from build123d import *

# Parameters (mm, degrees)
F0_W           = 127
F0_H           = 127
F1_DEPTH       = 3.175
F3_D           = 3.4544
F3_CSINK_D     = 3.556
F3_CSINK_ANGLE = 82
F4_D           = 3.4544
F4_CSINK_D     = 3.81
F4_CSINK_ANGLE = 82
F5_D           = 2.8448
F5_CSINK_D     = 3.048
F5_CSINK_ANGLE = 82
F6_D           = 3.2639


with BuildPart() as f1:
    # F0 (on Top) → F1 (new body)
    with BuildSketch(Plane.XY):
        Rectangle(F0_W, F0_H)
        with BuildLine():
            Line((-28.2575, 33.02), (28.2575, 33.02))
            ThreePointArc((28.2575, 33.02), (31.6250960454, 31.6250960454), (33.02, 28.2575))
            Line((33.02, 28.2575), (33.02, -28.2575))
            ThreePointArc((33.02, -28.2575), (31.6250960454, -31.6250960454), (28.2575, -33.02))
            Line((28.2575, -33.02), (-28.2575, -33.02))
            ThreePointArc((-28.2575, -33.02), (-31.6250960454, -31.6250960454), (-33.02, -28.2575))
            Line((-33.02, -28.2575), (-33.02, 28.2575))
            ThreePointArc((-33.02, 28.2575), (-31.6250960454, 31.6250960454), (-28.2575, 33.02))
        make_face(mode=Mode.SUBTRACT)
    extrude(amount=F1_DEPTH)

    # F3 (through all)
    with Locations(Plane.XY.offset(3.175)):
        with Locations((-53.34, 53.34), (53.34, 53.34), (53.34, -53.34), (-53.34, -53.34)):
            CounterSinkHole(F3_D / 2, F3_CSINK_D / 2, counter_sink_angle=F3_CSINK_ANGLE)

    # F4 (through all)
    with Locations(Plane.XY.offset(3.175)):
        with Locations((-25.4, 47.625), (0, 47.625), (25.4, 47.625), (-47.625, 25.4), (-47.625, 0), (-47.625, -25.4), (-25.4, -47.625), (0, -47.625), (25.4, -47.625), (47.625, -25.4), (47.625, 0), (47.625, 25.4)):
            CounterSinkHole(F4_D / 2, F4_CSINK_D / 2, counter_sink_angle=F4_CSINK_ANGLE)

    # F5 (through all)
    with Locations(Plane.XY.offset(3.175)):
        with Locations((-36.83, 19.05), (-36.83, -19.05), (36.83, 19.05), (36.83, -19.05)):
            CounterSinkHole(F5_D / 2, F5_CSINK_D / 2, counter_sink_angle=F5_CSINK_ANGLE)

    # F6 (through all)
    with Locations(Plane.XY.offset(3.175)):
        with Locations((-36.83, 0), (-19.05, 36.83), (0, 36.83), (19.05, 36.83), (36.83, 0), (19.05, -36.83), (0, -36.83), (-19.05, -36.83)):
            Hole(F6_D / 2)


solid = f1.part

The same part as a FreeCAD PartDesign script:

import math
import FreeCAD as App
import Part
import Sketcher
from FreeCAD import Vector
Q = App.Units.Quantity


def add_polygon(sketch, points):
    """Adds a closed chain of lines whose ends are joined by coincident constraints."""
    first, n = sketch.GeometryCount, len(points)
    for a, b in zip(points, points[1:] + points[:1]):
        sketch.addGeometry(Part.LineSegment(App.Vector(*a, 0), App.Vector(*b, 0)), False)
    for i in range(n):
        sketch.addConstraint(Sketcher.Constraint("Coincident", first + i, 2, first + (i + 1) % n, 1))

doc = App.newDocument("Part")
params = doc.addObject("Spreadsheet::Sheet", "Params")
for row, (alias, value) in enumerate([
    ("sketch1_width", "5 in"),
    ("sketch1_radius", "0.1875 in"),
    ("pad1_length", "0.125 in"),
    ("sketch2_diameter", "0.136 in"),
    ("hole_diameter", "0.136 in"),
    ("hole_csink_diameter", "0.14 in"),
    ("sketch3_diameter", "0.136 in"),
    ("hole2_diameter", "0.136 in"),
    ("hole2_csink_diameter", "0.15 in"),
    ("sketch4_diameter", "0.112 in"),
    ("hole3_diameter", "0.112 in"),
    ("hole3_csink_diameter", "0.12 in"),
    ("hole4_diameter", "0.1285 in"),
], start=1):
    params.set(f"A{row}", alias)
    params.set(f"B{row}", "=" + value)
    params.setAlias(f"B{row}", alias)

body = doc.addObject("PartDesign::Body", "Body")

sketch1 = body.newObject("Sketcher::SketchObject", "Sketch")
sketch1.AttachmentSupport = (doc.getObject("XY_Plane"), [""])
sketch1.MapMode = "FlatFace"
add_polygon(sketch1, [(-63.5, 63.5), (-63.5, -63.5), (63.5, -63.5), (63.5, 63.5)])
sketch1.addGeometry(Part.ArcOfCircle(Part.Circle(Vector(-28.3, 28.3, 0), Vector(0, 0, 1), 4.8), math.radians(90), math.radians(180)), False)
sketch1.addGeometry(Part.LineSegment(Vector(-28.3, 33, 0), Vector(28.3, 33, 0)), False)
sketch1.addGeometry(Part.ArcOfCircle(Part.Circle(Vector(28.3, 28.3, 0), Vector(0, 0, 1), 4.8), math.radians(0), math.radians(90)), False)
sketch1.addGeometry(Part.LineSegment(Vector(33, 28.3, 0), Vector(33, -28.3, 0)), False)
sketch1.addGeometry(Part.ArcOfCircle(Part.Circle(Vector(28.3, -28.3, 0), Vector(0, 0, 1), 4.8), math.radians(-90), math.radians(0)), False)
sketch1.addGeometry(Part.LineSegment(Vector(28.3, -33, 0), Vector(-28.3, -33, 0)), False)
sketch1.addGeometry(Part.ArcOfCircle(Part.Circle(Vector(-28.3, -28.3, 0), Vector(0, 0, 1), 4.8), math.radians(180), math.radians(270)), False)
sketch1.addGeometry(Part.LineSegment(Vector(-33, -28.3, 0), Vector(-33, 28.3, 0)), False)
sketch1.addConstraint([
    Sketcher.Constraint("Tangent", 4, 1, 5, 1),
    Sketcher.Constraint("Tangent", 5, 2, 6, 2),
    Sketcher.Constraint("Tangent", 6, 1, 7, 1),
    Sketcher.Constraint("Tangent", 7, 2, 8, 2),
    Sketcher.Constraint("Tangent", 8, 1, 9, 1),
    Sketcher.Constraint("Tangent", 9, 2, 10, 2),
    Sketcher.Constraint("Tangent", 10, 1, 11, 1),
    Sketcher.Constraint("Tangent", 11, 2, 4, 2),
    Sketcher.Constraint("Vertical", 0),
    Sketcher.Constraint("Horizontal", 1),
    Sketcher.Constraint("Vertical", 2),
    Sketcher.Constraint("Horizontal", 3),
    Sketcher.Constraint("Horizontal", 5),
    Sketcher.Constraint("Vertical", 7),
    Sketcher.Constraint("Horizontal", 9),
    Sketcher.Constraint("Vertical", 11),
    Sketcher.Constraint("Equal", 4, 6),
    Sketcher.Constraint("Equal", 6, 8),
    Sketcher.Constraint("Equal", 8, 10),
    Sketcher.Constraint("Symmetric", 4, 3, 8, 3, -1, 1),
    Sketcher.Constraint("Symmetric", 0, 2, 2, 2, -1, 1),
    Sketcher.Constraint("Equal", 3, 0),
    Sketcher.Constraint("Equal", 9, 7),
    Sketcher.Constraint("DistanceX", 1, 1, 1, 2, Q("5 in")),
    Sketcher.Constraint("Radius", 4, Q("0.1875 in")),
    Sketcher.Constraint("DistanceY", -1, 1, 4, 1, Q("1.3 in")),
])
sketch1.setExpression("Constraints[27]", "Params.sketch1_width")
sketch1.setExpression("Constraints[28]", "Params.sketch1_radius")
pad1 = body.newObject("PartDesign::Pad", "Pad")
pad1.Profile = sketch1
pad1.setExpression("Length", "Params.pad1_length")

sketch2 = body.newObject("Sketcher::SketchObject", "Sketch001")
sketch2.AttachmentSupport = (doc.getObject("XY_Plane"), [""])
sketch2.MapMode = "FlatFace"
sketch2.AttachmentOffset = App.Placement(Vector(0, 0, 0.125 * 25.4), App.Rotation())
sketch2.addGeometry([
    Part.Circle(Vector(-53.3, 53.3, 0), Vector(0, 0, 1), 1.7),
    Part.Circle(Vector(53.3, 53.3, 0), Vector(0, 0, 1), 1.7),
    Part.Circle(Vector(53.3, -53.3, 0), Vector(0, 0, 1), 1.7),
    Part.Circle(Vector(-53.3, -53.3, 0), Vector(0, 0, 1), 1.7),
], False)
sketch2.addConstraint([
    Sketcher.Constraint("Equal", 0, 1),
    Sketcher.Constraint("Equal", 1, 2),
    Sketcher.Constraint("Equal", 2, 3),
    Sketcher.Constraint("Symmetric", 0, 3, 2, 3, -1, 1),
    Sketcher.Constraint("Symmetric", 1, 3, 3, 3, -1, 1),
    Sketcher.Constraint("Symmetric", 0, 3, 1, 3, -2),
    Sketcher.Constraint("Diameter", 0, Q("0.136 in")),
    Sketcher.Constraint("DistanceX", 0, 3, -1, 1, Q("2.1 in")),
    Sketcher.Constraint("DistanceY", -1, 1, 0, 3, Q("2.1 in")),
])
sketch2.setExpression("Constraints[6]", "Params.sketch2_diameter")
doc.recompute()
hole = body.newObject("PartDesign::Hole", "Hole")
hole.Profile = sketch2
hole.ThreadType = "None"
hole.setExpression("Diameter", "Params.hole_diameter")
hole.DepthType = "ThroughAll"
hole.HoleCutType = "Countersink"
hole.setExpression("HoleCutDiameter", "Params.hole_csink_diameter")
hole.HoleCutCountersinkAngle = 82

sketch3 = body.newObject("Sketcher::SketchObject", "Sketch002")
sketch3.AttachmentSupport = (doc.getObject("XY_Plane"), [""])
sketch3.MapMode = "FlatFace"
sketch3.AttachmentOffset = App.Placement(Vector(0, 0, 0.125 * 25.4), App.Rotation())
sketch3.addGeometry([
    Part.Circle(Vector(-25.4, 47.6, 0), Vector(0, 0, 1), 1.7),
    Part.Circle(Vector(0, 47.6, 0), Vector(0, 0, 1), 1.7),
    Part.Circle(Vector(25.4, 47.6, 0), Vector(0, 0, 1), 1.7),
    Part.Circle(Vector(-47.6, 25.4, 0), Vector(0, 0, 1), 1.7),
    Part.Circle(Vector(-47.6, 0, 0), Vector(0, 0, 1), 1.7),
    Part.Circle(Vector(-47.6, -25.4, 0), Vector(0, 0, 1), 1.7),
    Part.Circle(Vector(-25.4, -47.6, 0), Vector(0, 0, 1), 1.7),
    Part.Circle(Vector(0, -47.6, 0), Vector(0, 0, 1), 1.7),
    Part.Circle(Vector(25.4, -47.6, 0), Vector(0, 0, 1), 1.7),
    Part.Circle(Vector(47.6, -25.4, 0), Vector(0, 0, 1), 1.7),
    Part.Circle(Vector(47.6, 0, 0), Vector(0, 0, 1), 1.7),
    Part.Circle(Vector(47.6, 25.4, 0), Vector(0, 0, 1), 1.7),
], False)
sketch3.addConstraint([
    Sketcher.Constraint("Equal", 0, 1),
    Sketcher.Constraint("Equal", 1, 2),
    Sketcher.Constraint("Equal", 2, 3),
    Sketcher.Constraint("Equal", 3, 4),
    Sketcher.Constraint("Equal", 4, 5),
    Sketcher.Constraint("Equal", 5, 6),
    Sketcher.Constraint("Equal", 6, 7),
    Sketcher.Constraint("Equal", 7, 8),
    Sketcher.Constraint("Equal", 8, 9),
    Sketcher.Constraint("Equal", 9, 10),
    Sketcher.Constraint("Equal", 10, 11),
    Sketcher.Constraint("Symmetric", 2, 3, 6, 3, -1, 1),
    Sketcher.Constraint("Symmetric", 1, 3, 7, 3, -1, 1),
    Sketcher.Constraint("Symmetric", 0, 3, 8, 3, -1, 1),
    Sketcher.Constraint("Symmetric", 3, 3, 9, 3, -1, 1),
    Sketcher.Constraint("Symmetric", 4, 3, 10, 3, -1, 1),
    Sketcher.Constraint("Symmetric", 5, 3, 11, 3, -1, 1),
    Sketcher.Constraint("Symmetric", 0, 3, 2, 3, -2),
    Sketcher.Constraint("Symmetric", 5, 3, 9, 3, -2),
    Sketcher.Constraint("PointOnObject", 1, 3, -2),
    Sketcher.Constraint("PointOnObject", 4, 3, -1),
    Sketcher.Constraint("Horizontal", 0, 3, 1, 3),
    Sketcher.Constraint("Vertical", 3, 3, 4, 3),
    Sketcher.Constraint("Diameter", 0, Q("0.136 in")),
    Sketcher.Constraint("DistanceX", 0, 3, -1, 1, Q("1 in")),
    Sketcher.Constraint("DistanceY", -1, 1, 3, 3, Q("1 in")),
    Sketcher.Constraint("DistanceY", 6, 3, 0, 3, Q("3.75 in")),
    Sketcher.Constraint("DistanceX", 3, 3, -1, 1, Q("1.875 in")),
])
sketch3.setExpression("Constraints[23]", "Params.sketch3_diameter")
doc.recompute()
hole2 = body.newObject("PartDesign::Hole", "Hole001")
hole2.Profile = sketch3
hole2.ThreadType = "None"
hole2.setExpression("Diameter", "Params.hole2_diameter")
hole2.DepthType = "ThroughAll"
hole2.HoleCutType = "Countersink"
hole2.setExpression("HoleCutDiameter", "Params.hole2_csink_diameter")
hole2.HoleCutCountersinkAngle = 82

sketch4 = body.newObject("Sketcher::SketchObject", "Sketch003")
sketch4.AttachmentSupport = (doc.getObject("XY_Plane"), [""])
sketch4.MapMode = "FlatFace"
sketch4.AttachmentOffset = App.Placement(Vector(0, 0, 0.125 * 25.4), App.Rotation())
sketch4.addGeometry([
    Part.Circle(Vector(-36.8, 19.1, 0), Vector(0, 0, 1), 1.4),
    Part.Circle(Vector(-36.8, -19.1, 0), Vector(0, 0, 1), 1.4),
    Part.Circle(Vector(36.8, 19.1, 0), Vector(0, 0, 1), 1.4),
    Part.Circle(Vector(36.8, -19.1, 0), Vector(0, 0, 1), 1.4),
], False)
sketch4.addConstraint([
    Sketcher.Constraint("Equal", 0, 1),
    Sketcher.Constraint("Equal", 1, 2),
    Sketcher.Constraint("Equal", 2, 3),
    Sketcher.Constraint("Symmetric", 1, 3, 2, 3, -1, 1),
    Sketcher.Constraint("Symmetric", 0, 3, 3, 3, -1, 1),
    Sketcher.Constraint("Symmetric", 0, 3, 2, 3, -2),
    Sketcher.Constraint("Diameter", 0, Q("0.112 in")),
    Sketcher.Constraint("DistanceY", 1, 3, 0, 3, Q("1.5 in")),
    Sketcher.Constraint("DistanceX", 0, 3, 2, 3, Q("2.9 in")),
])
sketch4.setExpression("Constraints[6]", "Params.sketch4_diameter")
doc.recompute()
hole3 = body.newObject("PartDesign::Hole", "Hole002")
hole3.Profile = sketch4
hole3.ThreadType = "None"
hole3.setExpression("Diameter", "Params.hole3_diameter")
hole3.DepthType = "ThroughAll"
hole3.HoleCutType = "Countersink"
hole3.setExpression("HoleCutDiameter", "Params.hole3_csink_diameter")
hole3.HoleCutCountersinkAngle = 82

sketch5 = body.newObject("Sketcher::SketchObject", "Sketch004")
sketch5.AttachmentSupport = (doc.getObject("XY_Plane"), [""])
sketch5.MapMode = "FlatFace"
sketch5.AttachmentOffset = App.Placement(Vector(0, 0, 0.125 * 25.4), App.Rotation())
sketch5.addGeometry([
    Part.Circle(Vector(-36.8, 0, 0), Vector(0, 0, 1), 1.6),
    Part.Circle(Vector(-19.1, 36.8, 0), Vector(0, 0, 1), 1.6),
    Part.Circle(Vector(0, 36.8, 0), Vector(0, 0, 1), 1.6),
    Part.Circle(Vector(19.1, 36.8, 0), Vector(0, 0, 1), 1.6),
    Part.Circle(Vector(36.8, 0, 0), Vector(0, 0, 1), 1.6),
    Part.Circle(Vector(19.1, -36.8, 0), Vector(0, 0, 1), 1.6),
    Part.Circle(Vector(0, -36.8, 0), Vector(0, 0, 1), 1.6),
    Part.Circle(Vector(-19.1, -36.8, 0), Vector(0, 0, 1), 1.6),
], False)
sketch5.addConstraint([
    Sketcher.Constraint("Equal", 0, 1),
    Sketcher.Constraint("Equal", 1, 2),
    Sketcher.Constraint("Equal", 2, 3),
    Sketcher.Constraint("Equal", 3, 4),
    Sketcher.Constraint("Equal", 4, 5),
    Sketcher.Constraint("Equal", 5, 6),
    Sketcher.Constraint("Equal", 6, 7),
    Sketcher.Constraint("Symmetric", 0, 3, 4, 3, -1, 1),
    Sketcher.Constraint("Symmetric", 1, 3, 5, 3, -1, 1),
    Sketcher.Constraint("Symmetric", 2, 3, 6, 3, -1, 1),
    Sketcher.Constraint("Symmetric", 3, 3, 7, 3, -1, 1),
    Sketcher.Constraint("Symmetric", 1, 3, 3, 3, -2),
    Sketcher.Constraint("PointOnObject", 0, 3, -1),
    Sketcher.Constraint("PointOnObject", 2, 3, -2),
    Sketcher.Constraint("Horizontal", 1, 3, 2, 3),
    Sketcher.Constraint("Diameter", 0, Q("0.1285 in")),
    Sketcher.Constraint("DistanceX", 0, 3, 1, 3, Q("0.7 in")),
    Sketcher.Constraint("DistanceX", 1, 3, 3, 3, Q("1.5 in")),
    Sketcher.Constraint("DistanceY", 5, 3, 3, 3, Q("2.9 in")),
])
doc.recompute()
hole4 = body.newObject("PartDesign::Hole", "Hole003")
hole4.Profile = sketch5
hole4.ThreadType = "None"
hole4.setExpression("Diameter", "Params.hole4_diameter")
hole4.DepthType = "ThroughAll"

doc.recompute()
